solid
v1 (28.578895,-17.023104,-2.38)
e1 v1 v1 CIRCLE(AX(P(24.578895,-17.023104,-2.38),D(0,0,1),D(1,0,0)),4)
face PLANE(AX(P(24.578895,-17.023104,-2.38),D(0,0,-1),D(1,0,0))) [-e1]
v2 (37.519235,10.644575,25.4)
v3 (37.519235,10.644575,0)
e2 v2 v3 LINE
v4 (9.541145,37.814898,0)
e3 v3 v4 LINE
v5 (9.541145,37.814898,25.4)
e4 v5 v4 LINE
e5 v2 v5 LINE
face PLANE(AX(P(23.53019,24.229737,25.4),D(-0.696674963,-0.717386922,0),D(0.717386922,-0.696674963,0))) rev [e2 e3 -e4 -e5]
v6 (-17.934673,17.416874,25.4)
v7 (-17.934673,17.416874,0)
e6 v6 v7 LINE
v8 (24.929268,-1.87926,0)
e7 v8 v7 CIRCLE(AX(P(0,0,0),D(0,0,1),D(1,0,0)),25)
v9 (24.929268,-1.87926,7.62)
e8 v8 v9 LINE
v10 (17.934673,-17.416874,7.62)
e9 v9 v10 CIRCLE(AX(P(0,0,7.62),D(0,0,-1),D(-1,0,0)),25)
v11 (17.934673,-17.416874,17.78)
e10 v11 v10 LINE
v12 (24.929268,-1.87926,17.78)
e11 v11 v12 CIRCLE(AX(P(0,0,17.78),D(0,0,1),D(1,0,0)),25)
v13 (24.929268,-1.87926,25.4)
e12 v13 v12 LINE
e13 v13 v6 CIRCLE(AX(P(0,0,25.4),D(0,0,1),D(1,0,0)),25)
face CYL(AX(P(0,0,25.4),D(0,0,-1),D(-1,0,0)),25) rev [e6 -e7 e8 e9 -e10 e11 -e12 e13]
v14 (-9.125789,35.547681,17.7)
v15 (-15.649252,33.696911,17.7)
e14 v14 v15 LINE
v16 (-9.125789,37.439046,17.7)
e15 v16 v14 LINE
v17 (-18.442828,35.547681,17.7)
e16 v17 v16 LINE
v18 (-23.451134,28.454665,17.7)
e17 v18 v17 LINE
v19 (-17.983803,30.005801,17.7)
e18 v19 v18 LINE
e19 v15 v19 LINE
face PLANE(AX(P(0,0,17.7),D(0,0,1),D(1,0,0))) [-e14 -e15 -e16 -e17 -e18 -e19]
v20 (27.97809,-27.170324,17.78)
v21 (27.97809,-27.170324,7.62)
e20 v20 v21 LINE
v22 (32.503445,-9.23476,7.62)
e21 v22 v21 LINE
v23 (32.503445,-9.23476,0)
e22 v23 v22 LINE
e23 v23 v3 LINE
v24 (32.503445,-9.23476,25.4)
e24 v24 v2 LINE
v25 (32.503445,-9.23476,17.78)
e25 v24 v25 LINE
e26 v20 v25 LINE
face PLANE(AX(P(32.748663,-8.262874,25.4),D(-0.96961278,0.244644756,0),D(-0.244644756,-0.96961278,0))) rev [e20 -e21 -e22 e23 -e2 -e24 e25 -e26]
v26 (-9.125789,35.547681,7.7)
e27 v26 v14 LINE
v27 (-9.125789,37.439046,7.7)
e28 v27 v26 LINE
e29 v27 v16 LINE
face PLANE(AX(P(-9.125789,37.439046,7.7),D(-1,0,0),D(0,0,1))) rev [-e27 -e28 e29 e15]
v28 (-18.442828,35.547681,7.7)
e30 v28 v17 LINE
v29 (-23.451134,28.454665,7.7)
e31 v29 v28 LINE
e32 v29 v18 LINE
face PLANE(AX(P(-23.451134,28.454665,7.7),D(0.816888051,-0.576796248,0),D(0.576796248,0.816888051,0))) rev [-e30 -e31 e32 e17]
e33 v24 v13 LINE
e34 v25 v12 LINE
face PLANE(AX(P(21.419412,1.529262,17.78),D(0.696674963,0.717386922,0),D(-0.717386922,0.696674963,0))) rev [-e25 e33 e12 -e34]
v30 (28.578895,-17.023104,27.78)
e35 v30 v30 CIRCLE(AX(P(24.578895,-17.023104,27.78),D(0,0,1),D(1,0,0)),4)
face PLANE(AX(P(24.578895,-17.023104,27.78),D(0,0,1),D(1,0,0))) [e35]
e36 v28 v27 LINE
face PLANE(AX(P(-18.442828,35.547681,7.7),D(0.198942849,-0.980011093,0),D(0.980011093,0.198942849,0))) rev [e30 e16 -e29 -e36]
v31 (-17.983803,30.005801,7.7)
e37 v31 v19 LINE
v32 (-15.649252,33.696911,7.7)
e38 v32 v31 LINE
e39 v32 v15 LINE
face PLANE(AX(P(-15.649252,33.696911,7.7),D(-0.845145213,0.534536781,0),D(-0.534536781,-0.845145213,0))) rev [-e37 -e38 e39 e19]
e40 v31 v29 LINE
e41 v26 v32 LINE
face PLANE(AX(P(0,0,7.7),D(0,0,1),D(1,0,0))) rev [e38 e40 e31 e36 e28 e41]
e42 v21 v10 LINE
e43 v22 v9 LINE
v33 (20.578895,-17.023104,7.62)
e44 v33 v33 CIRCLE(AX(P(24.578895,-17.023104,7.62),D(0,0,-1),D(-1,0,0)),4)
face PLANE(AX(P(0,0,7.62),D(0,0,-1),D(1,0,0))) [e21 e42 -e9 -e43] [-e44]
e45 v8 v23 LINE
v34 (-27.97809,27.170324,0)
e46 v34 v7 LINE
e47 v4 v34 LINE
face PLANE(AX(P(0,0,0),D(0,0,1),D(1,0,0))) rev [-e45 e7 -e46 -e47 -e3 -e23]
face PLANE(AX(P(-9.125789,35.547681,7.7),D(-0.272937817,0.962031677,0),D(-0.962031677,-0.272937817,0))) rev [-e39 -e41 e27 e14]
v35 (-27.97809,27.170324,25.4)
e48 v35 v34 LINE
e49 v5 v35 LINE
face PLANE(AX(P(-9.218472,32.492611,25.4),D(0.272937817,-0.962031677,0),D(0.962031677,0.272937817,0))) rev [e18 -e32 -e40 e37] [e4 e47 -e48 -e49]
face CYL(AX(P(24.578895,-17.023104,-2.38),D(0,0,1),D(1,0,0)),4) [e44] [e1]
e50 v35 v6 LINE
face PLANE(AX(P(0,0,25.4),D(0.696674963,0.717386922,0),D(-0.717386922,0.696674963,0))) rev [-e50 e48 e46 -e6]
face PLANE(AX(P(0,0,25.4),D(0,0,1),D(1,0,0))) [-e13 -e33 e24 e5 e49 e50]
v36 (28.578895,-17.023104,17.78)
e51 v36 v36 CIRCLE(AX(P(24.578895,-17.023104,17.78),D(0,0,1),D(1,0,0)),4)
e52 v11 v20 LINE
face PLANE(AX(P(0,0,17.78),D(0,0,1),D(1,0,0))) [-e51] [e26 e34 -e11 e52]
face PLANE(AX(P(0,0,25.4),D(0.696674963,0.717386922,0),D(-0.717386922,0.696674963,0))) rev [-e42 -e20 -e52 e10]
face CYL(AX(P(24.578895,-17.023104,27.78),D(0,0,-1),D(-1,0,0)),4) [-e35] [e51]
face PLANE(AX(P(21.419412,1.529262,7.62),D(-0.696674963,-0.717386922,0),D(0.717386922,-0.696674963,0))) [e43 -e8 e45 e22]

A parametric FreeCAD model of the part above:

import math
import FreeCAD as App
import Part
import Sketcher

V = App.Vector

doc = App.newDocument("Part")
params = doc.addObject("Spreadsheet::Sheet", "Params")
for row, (alias, value) in enumerate([
    ("sketch1_radius", "25 mm"),
    ("sketch1_length", "39 mm"),
    ("sketch1_length2", "14 mm"),
    ("pad1_length", "25.4 mm"),
    ("pocket1_length", "7.62 mm"),
    ("sketch3_diameter", "8 mm"),
    ("pad2_length", "10 mm"),
    ("pad3_length", "10 mm"),
], start=1):
    params.set(f"A{row}", alias)
    params.set(f"B{row}", "=" + value)
    params.setAlias(f"B{row}", alias)

body = doc.addObject("PartDesign::Body", "Body")

# Sketch on XY plane
sketch1 = body.newObject("Sketcher::SketchObject", "Sketch")
sketch1.AttachmentSupport = (doc.getObject("XY_Plane"), [""])
sketch1.MapMode = "FlatFace"
sketch1.addGeometry([
    Part.LineSegment(V(10, 38, 0), V(-28, 27, 0)),  # 0
    Part.LineSegment(V(-28, 27, 0), V(-18, 17, 0)),  # 1
    Part.ArcOfCircle(Part.Circle(V(0, 0, 0), V(0, 0, 1), 25), math.radians(-44), math.radians(136)),  # 2
    Part.LineSegment(V(18, -17, 0), V(28, -27, 0)),  # 3
    Part.LineSegment(V(28, -27, 0), V(38, 11, 0)),  # 4
    Part.LineSegment(V(38, 11, 0), V(10, 38, 0)),  # 5
], False)
sketch1.addConstraint([
    Sketcher.Constraint("Coincident", 0, 2, 1, 1),
    Sketcher.Constraint("Coincident", 1, 2, 2, 2),
    Sketcher.Constraint("Coincident", 2, 1, 3, 1),
    Sketcher.Constraint("Coincident", 3, 2, 4, 1),
    Sketcher.Constraint("Coincident", 4, 2, 5, 1),
    Sketcher.Constraint("Coincident", 5, 2, 0, 1),
    Sketcher.Constraint("Coincident", 2, 3, -1, 1),
    Sketcher.Constraint("Symmetric", 0, 2, 3, 2, -1, 1),
    Sketcher.Constraint("Parallel", 1, 3),
    Sketcher.Constraint("Parallel", 3, 5),
    Sketcher.Constraint("Equal", 0, 4),
    Sketcher.Constraint("Equal", 4, 5),
    Sketcher.Constraint("Radius", 2, 25.0),
    Sketcher.Constraint("Distance", 0, 39.0),
    Sketcher.Constraint("Distance", 1, 14.0),
    Sketcher.Constraint("DistanceY", -1, 1, 5, 2, 37.814898),
    Sketcher.Constraint("DistanceY", 3, 2, 4, 2, 37.814898),
])
sketch1.setExpression("Constraints[12]", "Params.sketch1_radius")
sketch1.setExpression("Constraints[13]", "Params.sketch1_length")
sketch1.setExpression("Constraints[14]", "Params.sketch1_length2")
pad1 = body.newObject("PartDesign::Pad", "Pad")
pad1.Profile = sketch1
pad1.setExpression("Length", "Params.pad1_length")

# Sketch on XY plane
sketch2 = body.newObject("Sketcher::SketchObject", "Sketch001")
sketch2.AttachmentSupport = (doc.getObject("XY_Plane"), [""])
sketch2.MapMode = "FlatFace"
sketch2.AttachmentOffset = App.Placement(V(0, 0, 25.4), App.Rotation())
sketch2.addGeometry([
    Part.LineSegment(V(45, -21, 0), V(21, 2, 0)),
    Part.LineSegment(V(21, 2, 0), V(5, -39, 0)),
    Part.LineSegment(V(5, -39, 0), V(45, -21, 0)),
], False)
sketch2.addConstraint([
    Sketcher.Constraint("Coincident", 0, 2, 1, 1),
    Sketcher.Constraint("Coincident", 1, 2, 2, 1),
    Sketcher.Constraint("Coincident", 2, 2, 0, 1),
    Sketcher.Constraint("Equal", 1, 2),
    Sketcher.Constraint("DistanceX", -1, 1, 0, 2, 21.419412),
    Sketcher.Constraint("DistanceY", -1, 1, 0, 2, 1.529262),
    Sketcher.Constraint("DistanceY", 2, 2, -1, 1, 21.457519),
    Sketcher.Constraint("DistanceX", 0, 2, 2, 2, 23.670171),
    Sketcher.Constraint("Distance", 1, 43.314786),
])
pocket1 = body.newObject("PartDesign::Pocket", "Pocket")
pocket1.Profile = sketch2
pocket1.setExpression("Length", "Params.pocket1_length")

# Sketch on XY plane
sketch3 = body.newObject("Sketcher::SketchObject", "Sketch002")
sketch3.AttachmentSupport = (doc.getObject("XY_Plane"), [""])
sketch3.MapMode = "FlatFace"
sketch3.AttachmentOffset = App.Placement(V(0, 0, 17.78), App.Rotation())
sketch3.addGeometry(Part.Circle(V(24.6, -17, 0), V(0, 0, 1), 4), False)
sketch3.addConstraint([
    Sketcher.Constraint("Diameter", 0, 8.0),
    Sketcher.Constraint("DistanceX", -1, 1, 0, 3, 24.578895),
    Sketcher.Constraint("DistanceY", 0, 3, -1, 1, 17.023104),
])
sketch3.setExpression("Constraints[0]", "Params.sketch3_diameter")
pad2 = body.newObject("PartDesign::Pad", "Pad001")
pad2.Profile = sketch3
pad2.setExpression("Length", "Params.pad2_length")
doc.recompute()

datumplane = body.newObject("PartDesign::Plane", "DatumPlane")
datumplane.AttachmentSupport = (doc.getObject("XY_Plane"), [""])
datumplane.MapMode = "FlatFace"
datumplane.AttachmentOffset = App.Placement(V(0, 0, 12.7), App.Rotation())
mirrored = body.newObject("PartDesign::Mirrored", "Mirrored")
mirrored.Originals = [pocket1, pad2]
mirrored.MirrorPlane = (datumplane, [""])
body.Tip = mirrored

# Sketch on XY plane
sketch4 = body.newObject("Sketcher::SketchObject", "Sketch003")
sketch4.AttachmentSupport = (doc.getObject("XY_Plane"), [""])
sketch4.MapMode = "FlatFace"
sketch4.AttachmentOffset = App.Placement(V(0, 0, 12.7), App.Rotation())
sketch4.addGeometry([
    Part.LineSegment(V(-23.5, 28.5, 0), V(-18.4, 35.5, 0)),  # 0
    Part.LineSegment(V(-18.4, 35.5, 0), V(-9.1, 37.4, 0)),  # 1
    Part.LineSegment(V(-9.1, 37.4, 0), V(-9.1, 35.5, 0)),  # 2
    Part.LineSegment(V(-9.1, 35.5, 0), V(-15.6, 33.7, 0)),  # 3
    Part.LineSegment(V(-15.6, 33.7, 0), V(-18, 30, 0)),  # 4
    Part.LineSegment(V(-18, 30, 0), V(-23.5, 28.5, 0)),  # 5
], False)
sketch4.addConstraint([
    Sketcher.Constraint("Coincident", 0, 2, 1, 1),
    Sketcher.Constraint("Coincident", 1, 2, 2, 1),
    Sketcher.Constraint("Coincident", 2, 2, 3, 1),
    Sketcher.Constraint("Coincident", 3, 2, 4, 1),
    Sketcher.Constraint("Coincident", 4, 2, 5, 1),
    Sketcher.Constraint("Coincident", 5, 2, 0, 1),
    Sketcher.Constraint("Vertical", 2),
    Sketcher.Constraint("Parallel", 3, 5),
    Sketcher.Constraint("Horizontal", 0, 2, 2, 2),
    Sketcher.Constraint("DistanceY", -1, 1, 4, 2, 30.005801),
    Sketcher.Constraint("Distance", 0, 8.682972),
    Sketcher.Constraint("Distance", 5, 5.683109),
    Sketcher.Constraint("DistanceY", 2, 2, 2, 1, 1.891365),
    Sketcher.Constraint("DistanceY", -1, 1, 0, 2, 35.547681),
    Sketcher.Constraint("DistanceX", 1, 2, -1, 1, 9.125789),
    Sketcher.Constraint("DistanceY", -1, 1, 3, 2, 33.696911),
    Sketcher.Constraint("DistanceX", 0, 2, 1, 2, 9.317039),
    Sketcher.Constraint("DistanceX", 4, 2, 3, 2, 2.33455),
])
pad3 = body.newObject("PartDesign::Pad", "Pad002")
pad3.Profile = sketch4
pad3.setExpression("Length", "Params.pad3_length")
pad3.Midplane = True

doc.recompute()
